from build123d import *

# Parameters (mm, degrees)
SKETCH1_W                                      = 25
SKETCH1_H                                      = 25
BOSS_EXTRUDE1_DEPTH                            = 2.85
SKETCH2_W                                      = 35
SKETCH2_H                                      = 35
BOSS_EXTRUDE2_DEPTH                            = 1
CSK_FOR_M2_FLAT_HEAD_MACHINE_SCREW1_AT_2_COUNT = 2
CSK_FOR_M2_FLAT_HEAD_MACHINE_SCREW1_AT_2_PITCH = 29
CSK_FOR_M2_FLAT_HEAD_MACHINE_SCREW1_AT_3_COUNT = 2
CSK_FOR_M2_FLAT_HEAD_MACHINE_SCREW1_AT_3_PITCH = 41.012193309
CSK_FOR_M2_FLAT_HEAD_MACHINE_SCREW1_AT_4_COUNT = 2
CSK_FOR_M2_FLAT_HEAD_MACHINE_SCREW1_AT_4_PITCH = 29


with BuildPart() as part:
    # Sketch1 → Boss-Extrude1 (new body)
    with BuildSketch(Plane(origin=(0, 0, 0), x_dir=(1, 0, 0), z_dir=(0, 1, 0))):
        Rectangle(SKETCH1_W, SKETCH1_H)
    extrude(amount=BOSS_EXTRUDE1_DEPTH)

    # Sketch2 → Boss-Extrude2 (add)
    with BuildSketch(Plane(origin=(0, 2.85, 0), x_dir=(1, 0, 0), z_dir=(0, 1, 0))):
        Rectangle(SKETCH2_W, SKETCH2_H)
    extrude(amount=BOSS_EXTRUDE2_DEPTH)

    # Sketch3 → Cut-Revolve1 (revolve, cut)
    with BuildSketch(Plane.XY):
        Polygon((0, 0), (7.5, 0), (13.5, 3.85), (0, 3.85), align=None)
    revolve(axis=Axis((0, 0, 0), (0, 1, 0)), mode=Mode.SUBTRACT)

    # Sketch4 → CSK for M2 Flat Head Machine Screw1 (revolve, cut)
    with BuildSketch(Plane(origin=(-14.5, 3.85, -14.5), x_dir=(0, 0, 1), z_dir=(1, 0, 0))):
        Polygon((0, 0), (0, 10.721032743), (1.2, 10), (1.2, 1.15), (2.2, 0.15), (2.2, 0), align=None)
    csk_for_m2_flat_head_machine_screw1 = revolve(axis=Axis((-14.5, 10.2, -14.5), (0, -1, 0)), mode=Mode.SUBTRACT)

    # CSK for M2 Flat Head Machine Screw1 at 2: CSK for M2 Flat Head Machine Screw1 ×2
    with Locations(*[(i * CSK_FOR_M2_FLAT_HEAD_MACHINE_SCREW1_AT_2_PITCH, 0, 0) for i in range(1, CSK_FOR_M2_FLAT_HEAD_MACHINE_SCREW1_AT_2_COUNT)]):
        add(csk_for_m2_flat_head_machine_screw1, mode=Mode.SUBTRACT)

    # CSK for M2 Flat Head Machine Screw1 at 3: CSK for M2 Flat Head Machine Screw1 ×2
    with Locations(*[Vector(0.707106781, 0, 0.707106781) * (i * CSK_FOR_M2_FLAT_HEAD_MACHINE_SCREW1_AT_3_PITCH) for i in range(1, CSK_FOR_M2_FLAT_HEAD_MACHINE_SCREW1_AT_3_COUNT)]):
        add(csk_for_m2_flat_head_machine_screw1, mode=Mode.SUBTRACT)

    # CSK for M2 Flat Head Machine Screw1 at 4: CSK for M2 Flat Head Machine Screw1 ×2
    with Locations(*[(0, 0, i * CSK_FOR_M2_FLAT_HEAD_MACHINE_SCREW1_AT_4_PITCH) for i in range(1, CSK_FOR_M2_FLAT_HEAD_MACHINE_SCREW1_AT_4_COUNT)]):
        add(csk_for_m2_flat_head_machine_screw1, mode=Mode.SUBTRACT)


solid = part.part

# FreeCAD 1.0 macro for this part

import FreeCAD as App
import Part
import Sketcher

V = App.Vector
Q = App.Units.Quantity

doc = App.newDocument("Part")
body = doc.addObject("PartDesign::Body", "Body")

sketch1 = body.newObject("Sketcher::SketchObject", "Sketch")
sketch1.AttachmentSupport = (doc.getObject("XZ_Plane"), [""])
sketch1.MapMode = "FlatFace"
sketch1.addGeometry(Part.LineSegment(V(-12, -12, 0), V(-12, 12, 0)), False)
sketch1.addGeometry(Part.LineSegment(V(-12, 12, 0), V(12, 12, 0)), False)
sketch1.addGeometry(Part.LineSegment(V(12, 12, 0), V(12, -12, 0)), False)
sketch1.addGeometry(Part.LineSegment(V(12, -12, 0), V(-12, -12, 0)), False)
sketch1.addConstraint(Sketcher.Constraint("Coincident", 0, 2, 1, 1))
sketch1.addConstraint(Sketcher.Constraint("Coincident", 1, 2, 2, 1))
sketch1.addConstraint(Sketcher.Constraint("Coincident", 2, 2, 3, 1))
sketch1.addConstraint(Sketcher.Constraint("Coincident", 3, 2, 0, 1))
sketch1.addConstraint(Sketcher.Constraint("Vertical", 0))
sketch1.addConstraint(Sketcher.Constraint("Horizontal", 1))
sketch1.addConstraint(Sketcher.Constraint("Vertical", 2))
sketch1.addConstraint(Sketcher.Constraint("Horizontal", 3))
sketch1.addConstraint(Sketcher.Constraint("Symmetric", 0, 2, 2, 2, -1, 1))
sketch1.addConstraint(Sketcher.Constraint("Equal", 3, 0))
sketch1.addConstraint(Sketcher.Constraint("DistanceX", 1, 1, 1, 2, 25.0))
pad1 = body.newObject("PartDesign::Pad", "Pad")
pad1.Profile = sketch1
pad1.Length = 2.85
pad1.Reversed = True

sketch2 = body.newObject("Sketcher::SketchObject", "Sketch001")
sketch2.AttachmentSupport = (doc.getObject("XZ_Plane"), [""])
sketch2.MapMode = "FlatFace"
sketch2.AttachmentOffset = App.Placement(V(0, 0, -2.85), App.Rotation())
sketch2.addGeometry(Part.LineSegment(V(-18, -18, 0), V(-18, 18, 0)), False)
sketch2.addGeometry(Part.LineSegment(V(-18, 18, 0), V(18, 18, 0)), False)
sketch2.addGeometry(Part.LineSegment(V(18, 18, 0), V(18, -18, 0)), False)
sketch2.addGeometry(Part.LineSegment(V(18, -18, 0), V(-18, -18, 0)), False)
sketch2.addConstraint(Sketcher.Constraint("Coincident", 0, 2, 1, 1))
sketch2.addConstraint(Sketcher.Constraint("Coincident", 1, 2, 2, 1))
sketch2.addConstraint(Sketcher.Constraint("Coincident", 2, 2, 3, 1))
sketch2.addConstraint(Sketcher.Constraint("Coincident", 3, 2, 0, 1))
sketch2.addConstraint(Sketcher.Constraint("Vertical", 0))
sketch2.addConstraint(Sketcher.Constraint("Horizontal", 1))
sketch2.addConstraint(Sketcher.Constraint("Vertical", 2))
sketch2.addConstraint(Sketcher.Constraint("Horizontal", 3))
sketch2.addConstraint(Sketcher.Constraint("Symmetric", 0, 2, 2, 2, -1, 1))
sketch2.addConstraint(Sketcher.Constraint("Equal", 3, 0))
sketch2.addConstraint(Sketcher.Constraint("DistanceX", 1, 1, 1, 2, 35.0))
pad2 = body.newObject("PartDesign::Pad", "Pad001")
pad2.Profile = sketch2
pad2.Length = 1
pad2.Reversed = True

sketch3 = body.newObject("Sketcher::SketchObject", "Sketch002")
sketch3.AttachmentSupport = (doc.getObject("XY_Plane"), [""])
sketch3.MapMode = "FlatFace"
sketch3.addGeometry(Part.LineSegment(V(0, 0, 0), V(7.5, 0, 0)), False)
sketch3.addGeometry(Part.LineSegment(V(7.5, 0, 0), V(13.5, 3.9, 0)), False)
sketch3.addGeometry(Part.LineSegment(V(13.5, 3.9, 0), V(0, 3.9, 0)), False)
sketch3.addGeometry(Part.LineSegment(V(0, 3.9, 0), V(0, 0, 0)), False)
sketch3.addConstraint(Sketcher.Constraint("Coincident", 0, 2, 1, 1))
sketch3.addConstraint(Sketcher.Constraint("Coincident", 1, 2, 2, 1))
sketch3.addConstraint(Sketcher.Constraint("Coincident", 2, 2, 3, 1))
sketch3.addConstraint(Sketcher.Constraint("Coincident", 3, 2, 0, 1))
sketch3.addConstraint(Sketcher.Constraint("Horizontal", 0))
sketch3.addConstraint(Sketcher.Constraint("Horizontal", 2))
sketch3.addConstraint(Sketcher.Constraint("Vertical", 3))
sketch3.addConstraint(Sketcher.Constraint("Coincident", 3, 2, -1, 1))
sketch3.addConstraint(Sketcher.Constraint("DistanceX", 0, 1, 0, 2, 7.5))
sketch3.addConstraint(Sketcher.Constraint("DistanceX", 2, 2, 2, 1, 13.5))
sketch3.addConstraint(Sketcher.Constraint("DistanceY", 3, 2, 3, 1, 3.85))
groove = body.newObject("PartDesign::Groove", "Groove")
groove.Profile = sketch3
groove.ReferenceAxis = (sketch3, ["V_Axis"])
groove.Angle = 360

sketch4 = body.newObject("Sketcher::SketchObject", "Sketch003")
sketch4.AttachmentSupport = (doc.getObject("YZ_Plane"), [""])
sketch4.MapMode = "FlatFace"
sketch4.AttachmentOffset = App.Placement(V(0, 0, -14.5), App.Rotation())
sketch4.addGeometry(Part.LineSegment(V(-6.87, -14.5, 0), V(3.85, -14.5, 0)), False)
sketch4.addGeometry(Part.LineSegment(V(3.85, -14.5, 0), V(3.85, -12.3, 0)), False)
sketch4.addGeometry(Part.LineSegment(V(3.85, -12.3, 0), V(3.7, -12.3, 0)), False)
sketch4.addGeometry(Part.LineSegment(V(3.7, -12.3, 0), V(2.7, -13.3, 0)), False)
sketch4.addGeometry(Part.LineSegment(V(2.7, -13.3, 0), V(-6.15, -13.3, 0)), False)
sketch4.addGeometry(Part.LineSegment(V(-6.15, -13.3, 0), V(-6.87, -14.5, 0)), False)
sketch4.addGeometry(Part.LineSegment(V(3.85, -14.5, 0), V(-6.87, -14.5, 0)), True)
sketch4.addConstraint(Sketcher.Constraint("Coincident", 0, 2, 1, 1))
sketch4.addConstraint(Sketcher.Constraint("Coincident", 1, 2, 2, 1))
sketch4.addConstraint(Sketcher.Constraint("Coincident", 2, 2, 3, 1))
sketch4.addConstraint(Sketcher.Constraint("Coincident", 3, 2, 4, 1))
sketch4.addConstraint(Sketcher.Constraint("Coincident", 4, 2, 5, 1))
sketch4.addConstraint(Sketcher.Constraint("Coincident", 5, 2, 0, 1))
sketch4.addConstraint(Sketcher.Constraint("Horizontal", 0))
sketch4.addConstraint(Sketcher.Constraint("Vertical", 1))
sketch4.addConstraint(Sketcher.Constraint("Horizontal", 2))
sketch4.addConstraint(Sketcher.Constraint("Horizontal", 4))
sketch4.addConstraint(Sketcher.Constraint("Horizontal", 6))
sketch4.addConstraint(Sketcher.Constraint("Coincident", 6, 1, 0, 2))
sketch4.addConstraint(Sketcher.Constraint("Equal", 0, 6))
sketch4.addConstraint(Sketcher.Constraint("Angle", 3, Q("-135 deg")))
sketch4.addConstraint(Sketcher.Constraint("Angle", 5, Q("-121 deg")))
sketch4.addConstraint(Sketcher.Constraint("DistanceY", 1, 1, 1, 2, 2.2))
sketch4.addConstraint(Sketcher.Constraint("DistanceX", 3, 2, 2, 2, 1.0))
sketch4.addConstraint(Sketcher.Constraint("DistanceX", 4, 2, 1, 2, 10.0))
sketch4.addConstraint(Sketcher.Constraint("DistanceX", 2, 2, 2, 1, 0.15))
sketch4.addConstraint(Sketcher.Constraint("DistanceY", 0, 2, -1, 1, 14.5))
sketch4.addConstraint(Sketcher.Constraint("DistanceX", -1, 1, 2, 2, 3.7))
groove2 = body.newObject("PartDesign::Groove", "Groove001")
groove2.Profile = sketch4
groove2.ReferenceAxis = (sketch4, ["Axis0"])
groove2.Angle = 360
doc.recompute()

linearpattern = body.newObject("PartDesign::LinearPattern", "LinearPattern")
linearpattern.Originals = [groove2]
linearpattern.Direction = (doc.getObject("X_Axis"), [""])
linearpattern.Mode = "offset"
linearpattern.Offset = 29
linearpattern.Occurrences = 2
body.Tip = linearpattern
doc.recompute()

datumline = body.newObject("PartDesign::Line", "DatumLine")
datumline.Placement = App.Placement(V(0, 0, 0), App.Rotation(V(0, 0, 1), V(0.707106781, 0, 0.707106781)))
linearpattern2 = body.newObject("PartDesign::LinearPattern", "LinearPattern001")
linearpattern2.Originals = [groove2]
linearpattern2.Direction = (datumline, [""])
linearpattern2.Mode = "offset"
linearpattern2.Offset = 41.012193
linearpattern2.Occurrences = 2
body.Tip = linearpattern2
doc.recompute()

linearpattern3 = body.newObject("PartDesign::LinearPattern", "LinearPattern002")
linearpattern3.Originals = [groove2]
linearpattern3.Direction = (doc.getObject("Z_Axis"), [""])
linearpattern3.Mode = "offset"
linearpattern3.Offset = 29
linearpattern3.Occurrences = 2
body.Tip = linearpattern3

doc.recompute()
